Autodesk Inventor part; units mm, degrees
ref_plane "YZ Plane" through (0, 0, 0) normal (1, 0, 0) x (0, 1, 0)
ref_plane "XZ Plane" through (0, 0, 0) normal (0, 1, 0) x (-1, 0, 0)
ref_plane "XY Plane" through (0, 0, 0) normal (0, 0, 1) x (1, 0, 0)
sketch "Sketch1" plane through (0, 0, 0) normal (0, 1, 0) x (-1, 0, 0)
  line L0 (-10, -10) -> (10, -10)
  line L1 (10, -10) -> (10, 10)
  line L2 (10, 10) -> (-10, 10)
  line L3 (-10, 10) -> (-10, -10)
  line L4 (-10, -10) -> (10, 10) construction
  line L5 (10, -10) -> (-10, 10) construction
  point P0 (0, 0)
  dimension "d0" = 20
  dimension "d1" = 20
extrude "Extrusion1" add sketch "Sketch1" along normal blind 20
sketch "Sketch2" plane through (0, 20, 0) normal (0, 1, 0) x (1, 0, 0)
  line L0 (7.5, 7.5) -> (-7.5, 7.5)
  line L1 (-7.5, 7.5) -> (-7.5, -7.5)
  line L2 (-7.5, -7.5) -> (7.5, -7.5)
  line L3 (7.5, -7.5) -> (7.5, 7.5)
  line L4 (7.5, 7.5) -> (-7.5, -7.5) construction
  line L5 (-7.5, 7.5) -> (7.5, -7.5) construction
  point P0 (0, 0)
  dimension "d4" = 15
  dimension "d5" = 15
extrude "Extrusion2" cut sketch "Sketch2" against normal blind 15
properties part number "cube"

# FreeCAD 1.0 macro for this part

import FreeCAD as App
import Part
import Sketcher
Q = App.Units.Quantity

doc = App.newDocument("Part")
params = doc.addObject("Spreadsheet::Sheet", "Params")
for row, (alias, value) in enumerate([
    ("sketch1_width", "20 mm"),
    ("pad1_length", "20 mm"),
    ("sketch2_width", "15 mm"),
    ("pocket1_length", "15 mm"),
], start=1):
    params.set(f"A{row}", alias)
    params.set(f"B{row}", "=" + value)
    params.setAlias(f"B{row}", alias)

body = doc.addObject("PartDesign::Body", "Body")

# Sketch on XZ plane
sketch1 = body.newObject("Sketcher::SketchObject", "Sketch")
sketch1.AttachmentSupport = (doc.getObject("XZ_Plane"), [""])
sketch1.MapMode = "FlatFace"
sketch1.addGeometry([
    Part.LineSegment(App.Vector(10, 10, 0), App.Vector(10, -10, 0)),
    Part.LineSegment(App.Vector(10, -10, 0), App.Vector(-10, -10, 0)),
    Part.LineSegment(App.Vector(-10, -10, 0), App.Vector(-10, 10, 0)),
    Part.LineSegment(App.Vector(-10, 10, 0), App.Vector(10, 10, 0)),
], False)
sketch1.addConstraint([
    Sketcher.Constraint("Coincident", 0, 2, 1, 1),
    Sketcher.Constraint("Coincident", 1, 2, 2, 1),
    Sketcher.Constraint("Coincident", 2, 2, 3, 1),
    Sketcher.Constraint("Coincident", 3, 2, 0, 1),
    Sketcher.Constraint("Vertical", 0),
    Sketcher.Constraint("Horizontal", 1),
    Sketcher.Constraint("Vertical", 2),
    Sketcher.Constraint("Horizontal", 3),
    Sketcher.Constraint("Symmetric", 0, 2, 2, 2, -1, 1),
    Sketcher.Constraint("Equal", 3, 0),
    Sketcher.Constraint("DistanceX", 1, 2, 1, 1, Q("20 mm")),
])
sketch1.setExpression("Constraints[10]", "Params.sketch1_width")
pad1 = body.newObject("PartDesign::Pad", "Pad")
pad1.Profile = sketch1
pad1.setExpression("Length", "Params.pad1_length")
pad1.Reversed = True

# Sketch on XZ plane
sketch2 = body.newObject("Sketcher::SketchObject", "Sketch001")
sketch2.AttachmentSupport = (doc.getObject("XZ_Plane"), [""])
sketch2.MapMode = "FlatFace"
sketch2.AttachmentOffset = App.Placement(App.Vector(0, 0, -20), App.Rotation())
sketch2.addGeometry([
    Part.LineSegment(App.Vector(8, 8, 0), App.Vector(8, -8, 0)),
    Part.LineSegment(App.Vector(8, -8, 0), App.Vector(-8, -8, 0)),
    Part.LineSegment(App.Vector(-8, -8, 0), App.Vector(-8, 8, 0)),
    Part.LineSegment(App.Vector(-8, 8, 0), App.Vector(8, 8, 0)),
], False)
sketch2.addConstraint([
    Sketcher.Constraint("Coincident", 0, 2, 1, 1),
    Sketcher.Constraint("Coincident", 1, 2, 2, 1),
    Sketcher.Constraint("Coincident", 2, 2, 3, 1),
    Sketcher.Constraint("Coincident", 3, 2, 0, 1),
    Sketcher.Constraint("Vertical", 0),
    Sketcher.Constraint("Horizontal", 1),
    Sketcher.Constraint("Vertical", 2),
    Sketcher.Constraint("Horizontal", 3),
    Sketcher.Constraint("Symmetric", 0, 2, 2, 2, -1, 1),
    Sketcher.Constraint("Equal", 3, 0),
    Sketcher.Constraint("DistanceX", 1, 2, 1, 1, Q("15 mm")),
])
sketch2.setExpression("Constraints[10]", "Params.sketch2_width")
pocket1 = body.newObject("PartDesign::Pocket", "Pocket")
pocket1.Profile = sketch2
pocket1.setExpression("Length", "Params.pocket1_length")
pocket1.Reversed = True

doc.recompute()
